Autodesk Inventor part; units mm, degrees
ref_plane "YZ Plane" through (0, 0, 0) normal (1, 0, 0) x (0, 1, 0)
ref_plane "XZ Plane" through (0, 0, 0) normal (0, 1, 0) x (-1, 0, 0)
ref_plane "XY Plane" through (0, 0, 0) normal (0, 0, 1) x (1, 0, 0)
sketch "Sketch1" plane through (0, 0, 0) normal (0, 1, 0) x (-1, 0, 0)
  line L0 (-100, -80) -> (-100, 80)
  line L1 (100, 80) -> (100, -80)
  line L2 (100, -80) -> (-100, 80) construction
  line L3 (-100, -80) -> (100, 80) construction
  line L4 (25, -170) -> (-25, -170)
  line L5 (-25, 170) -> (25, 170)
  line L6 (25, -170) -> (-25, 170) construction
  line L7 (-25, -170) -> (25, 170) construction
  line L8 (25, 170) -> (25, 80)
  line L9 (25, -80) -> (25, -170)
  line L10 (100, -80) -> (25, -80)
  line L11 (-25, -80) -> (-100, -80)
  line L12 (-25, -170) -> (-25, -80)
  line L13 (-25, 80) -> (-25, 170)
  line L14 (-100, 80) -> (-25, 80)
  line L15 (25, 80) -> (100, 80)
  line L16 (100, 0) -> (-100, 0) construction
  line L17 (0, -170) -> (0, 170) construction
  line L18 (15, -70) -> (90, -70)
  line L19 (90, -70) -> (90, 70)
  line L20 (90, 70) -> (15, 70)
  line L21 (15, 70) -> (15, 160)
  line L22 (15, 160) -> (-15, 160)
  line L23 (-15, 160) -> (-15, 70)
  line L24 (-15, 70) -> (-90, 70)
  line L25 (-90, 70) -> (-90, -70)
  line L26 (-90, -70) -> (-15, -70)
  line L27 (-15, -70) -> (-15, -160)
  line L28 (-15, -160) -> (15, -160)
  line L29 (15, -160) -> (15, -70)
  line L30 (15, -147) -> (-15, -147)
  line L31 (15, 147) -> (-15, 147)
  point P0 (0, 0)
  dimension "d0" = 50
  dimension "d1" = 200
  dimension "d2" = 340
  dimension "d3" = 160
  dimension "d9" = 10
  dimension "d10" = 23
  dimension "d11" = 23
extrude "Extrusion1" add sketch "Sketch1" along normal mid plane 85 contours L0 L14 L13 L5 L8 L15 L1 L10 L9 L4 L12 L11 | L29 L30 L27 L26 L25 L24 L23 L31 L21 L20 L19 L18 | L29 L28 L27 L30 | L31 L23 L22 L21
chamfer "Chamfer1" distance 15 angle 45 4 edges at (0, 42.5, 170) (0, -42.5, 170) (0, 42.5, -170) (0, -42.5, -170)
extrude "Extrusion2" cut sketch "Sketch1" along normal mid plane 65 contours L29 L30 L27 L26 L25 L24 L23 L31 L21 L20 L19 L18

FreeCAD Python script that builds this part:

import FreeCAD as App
import Part
import Sketcher

V = App.Vector
Q = App.Units.Quantity


def edges_at(feature, points):
    """Names of the edges that pass closest to the given points."""
    edges = feature.Shape.Edges
    near = lambda p: min(range(len(edges)), key=lambda i: edges[i].distToShape(Part.Vertex(*p))[0])
    return sorted({f"Edge{near(p) + 1}" for p in points})

doc = App.newDocument("Part")
body = doc.addObject("PartDesign::Body", "Body")

sketch1 = doc.addObject("Sketcher::SketchObject", "Sketch")
body.addObject(sketch1)
sketch1.AttachmentSupport = (doc.XZ_Plane, [""])
sketch1.MapMode = "FlatFace"
sketch1.addGeometry([
    Part.LineSegment(V(100, 80, 0), V(100, -80, 0)),
    Part.LineSegment(V(100, -80, 0), V(25, -80, 0)),
    Part.LineSegment(V(25, -80, 0), V(25, -170, 0)),
    Part.LineSegment(V(25, -170, 0), V(-25, -170, 0)),
    Part.LineSegment(V(-25, -170, 0), V(-25, -80, 0)),
    Part.LineSegment(V(-25, -80, 0), V(-100, -80, 0)),
    Part.LineSegment(V(-100, -80, 0), V(-100, 80, 0)),
    Part.LineSegment(V(-100, 80, 0), V(-25, 80, 0)),
    Part.LineSegment(V(-25, 80, 0), V(-25, 170, 0)),
    Part.LineSegment(V(-25, 170, 0), V(25, 170, 0)),
    Part.LineSegment(V(25, 170, 0), V(25, 80, 0)),
    Part.LineSegment(V(25, 80, 0), V(100, 80, 0)),
], False)
sketch1.addConstraint([
    Sketcher.Constraint("Coincident", 0, 2, 1, 1),
    Sketcher.Constraint("Coincident", 1, 2, 2, 1),
    Sketcher.Constraint("Coincident", 2, 2, 3, 1),
    Sketcher.Constraint("Coincident", 3, 2, 4, 1),
    Sketcher.Constraint("Coincident", 4, 2, 5, 1),
    Sketcher.Constraint("Coincident", 5, 2, 6, 1),
    Sketcher.Constraint("Coincident", 6, 2, 7, 1),
    Sketcher.Constraint("Coincident", 7, 2, 8, 1),
    Sketcher.Constraint("Coincident", 8, 2, 9, 1),
    Sketcher.Constraint("Coincident", 9, 2, 10, 1),
    Sketcher.Constraint("Coincident", 10, 2, 11, 1),
    Sketcher.Constraint("Coincident", 11, 2, 0, 1),
    Sketcher.Constraint("Vertical", 0),
    Sketcher.Constraint("Horizontal", 1),
    Sketcher.Constraint("Vertical", 2),
    Sketcher.Constraint("Horizontal", 3),
    Sketcher.Constraint("Vertical", 4),
    Sketcher.Constraint("Horizontal", 5),
    Sketcher.Constraint("Vertical", 6),
    Sketcher.Constraint("Horizontal", 7),
    Sketcher.Constraint("Vertical", 8),
    Sketcher.Constraint("Horizontal", 9),
    Sketcher.Constraint("Vertical", 10),
    Sketcher.Constraint("Horizontal", 11),
    Sketcher.Constraint("Symmetric", 0, 2, 6, 2, -1, 1),
    Sketcher.Constraint("Symmetric", 2, 2, 8, 2, -1, 1),
    Sketcher.Constraint("Symmetric", 4, 2, 10, 2, -1, 1),
    Sketcher.Constraint("Symmetric", 1, 2, 4, 2, -2),
    Sketcher.Constraint("DistanceX", 3, 2, 3, 1, Q("50 mm")),
    Sketcher.Constraint("DistanceY", 0, 2, 0, 1, Q("160 mm")),
    Sketcher.Constraint("DistanceX", 5, 2, 0, 2, Q("200 mm")),
    Sketcher.Constraint("DistanceY", 2, 2, 2, 1, Q("90 mm")),
])
pad1 = doc.addObject("PartDesign::Pad", "Pad")
body.addObject(pad1)
pad1.Profile = sketch1
pad1.Length = 85
pad1.Midplane = True
doc.recompute()

chamfer = doc.addObject("PartDesign::Chamfer", "Chamfer")
body.addObject(chamfer)
chamfer.Base = (pad1, edges_at(pad1, [
    (0, 42.5, 170),
    (0, -42.5, 170),
    (0, 42.5, -170),
    (0, -42.5, -170),
]))
chamfer.Size = 15

sketch2 = doc.addObject("Sketcher::SketchObject", "Sketch001")
body.addObject(sketch2)
sketch2.AttachmentSupport = (doc.XZ_Plane, [""])
sketch2.MapMode = "FlatFace"
sketch2.addGeometry([
    Part.LineSegment(V(-15, -147, 0), V(-15, -70, 0)),
    Part.LineSegment(V(-15, -70, 0), V(-90, -70, 0)),
    Part.LineSegment(V(-90, -70, 0), V(-90, 70, 0)),
    Part.LineSegment(V(-90, 70, 0), V(-15, 70, 0)),
    Part.LineSegment(V(-15, 70, 0), V(-15, 147, 0)),
    Part.LineSegment(V(-15, 147, 0), V(15, 147, 0)),
    Part.LineSegment(V(15, 147, 0), V(15, 70, 0)),
    Part.LineSegment(V(15, 70, 0), V(90, 70, 0)),
    Part.LineSegment(V(90, 70, 0), V(90, -70, 0)),
    Part.LineSegment(V(90, -70, 0), V(15, -70, 0)),
    Part.LineSegment(V(15, -70, 0), V(15, -147, 0)),
    Part.LineSegment(V(15, -147, 0), V(-15, -147, 0)),
], False)
sketch2.addConstraint([
    Sketcher.Constraint("Coincident", 0, 2, 1, 1),
    Sketcher.Constraint("Coincident", 1, 2, 2, 1),
    Sketcher.Constraint("Coincident", 2, 2, 3, 1),
    Sketcher.Constraint("Coincident", 3, 2, 4, 1),
    Sketcher.Constraint("Coincident", 4, 2, 5, 1),
    Sketcher.Constraint("Coincident", 5, 2, 6, 1),
    Sketcher.Constraint("Coincident", 6, 2, 7, 1),
    Sketcher.Constraint("Coincident", 7, 2, 8, 1),
    Sketcher.Constraint("Coincident", 8, 2, 9, 1),
    Sketcher.Constraint("Coincident", 9, 2, 10, 1),
    Sketcher.Constraint("Coincident", 10, 2, 11, 1),
    Sketcher.Constraint("Coincident", 11, 2, 0, 1),
    Sketcher.Constraint("Vertical", 0),
    Sketcher.Constraint("Horizontal", 1),
    Sketcher.Constraint("Vertical", 2),
    Sketcher.Constraint("Horizontal", 3),
    Sketcher.Constraint("Vertical", 4),
    Sketcher.Constraint("Horizontal", 5),
    Sketcher.Constraint("Vertical", 6),
    Sketcher.Constraint("Horizontal", 7),
    Sketcher.Constraint("Vertical", 8),
    Sketcher.Constraint("Horizontal", 9),
    Sketcher.Constraint("Vertical", 10),
    Sketcher.Constraint("Horizontal", 11),
    Sketcher.Constraint("Symmetric", 0, 2, 6, 2, -1, 1),
    Sketcher.Constraint("Symmetric", 2, 2, 8, 2, -1, 1),
    Sketcher.Constraint("Symmetric", 4, 2, 10, 2, -1, 1),
    Sketcher.Constraint("Symmetric", 3, 2, 6, 2, -2),
    Sketcher.Constraint("DistanceX", 1, 2, 1, 1, Q("75 mm")),
    Sketcher.Constraint("DistanceX", 5, 1, 5, 2, Q("30 mm")),
    Sketcher.Constraint("DistanceY", 0, 1, 0, 2, Q("77 mm")),
    Sketcher.Constraint("DistanceY", 2, 1, 2, 2, Q("140 mm")),
])
pocket1 = doc.addObject("PartDesign::Pocket", "Pocket")
body.addObject(pocket1)
pocket1.Profile = sketch2
pocket1.Length = 65
pocket1.Midplane = True

doc.recompute()
